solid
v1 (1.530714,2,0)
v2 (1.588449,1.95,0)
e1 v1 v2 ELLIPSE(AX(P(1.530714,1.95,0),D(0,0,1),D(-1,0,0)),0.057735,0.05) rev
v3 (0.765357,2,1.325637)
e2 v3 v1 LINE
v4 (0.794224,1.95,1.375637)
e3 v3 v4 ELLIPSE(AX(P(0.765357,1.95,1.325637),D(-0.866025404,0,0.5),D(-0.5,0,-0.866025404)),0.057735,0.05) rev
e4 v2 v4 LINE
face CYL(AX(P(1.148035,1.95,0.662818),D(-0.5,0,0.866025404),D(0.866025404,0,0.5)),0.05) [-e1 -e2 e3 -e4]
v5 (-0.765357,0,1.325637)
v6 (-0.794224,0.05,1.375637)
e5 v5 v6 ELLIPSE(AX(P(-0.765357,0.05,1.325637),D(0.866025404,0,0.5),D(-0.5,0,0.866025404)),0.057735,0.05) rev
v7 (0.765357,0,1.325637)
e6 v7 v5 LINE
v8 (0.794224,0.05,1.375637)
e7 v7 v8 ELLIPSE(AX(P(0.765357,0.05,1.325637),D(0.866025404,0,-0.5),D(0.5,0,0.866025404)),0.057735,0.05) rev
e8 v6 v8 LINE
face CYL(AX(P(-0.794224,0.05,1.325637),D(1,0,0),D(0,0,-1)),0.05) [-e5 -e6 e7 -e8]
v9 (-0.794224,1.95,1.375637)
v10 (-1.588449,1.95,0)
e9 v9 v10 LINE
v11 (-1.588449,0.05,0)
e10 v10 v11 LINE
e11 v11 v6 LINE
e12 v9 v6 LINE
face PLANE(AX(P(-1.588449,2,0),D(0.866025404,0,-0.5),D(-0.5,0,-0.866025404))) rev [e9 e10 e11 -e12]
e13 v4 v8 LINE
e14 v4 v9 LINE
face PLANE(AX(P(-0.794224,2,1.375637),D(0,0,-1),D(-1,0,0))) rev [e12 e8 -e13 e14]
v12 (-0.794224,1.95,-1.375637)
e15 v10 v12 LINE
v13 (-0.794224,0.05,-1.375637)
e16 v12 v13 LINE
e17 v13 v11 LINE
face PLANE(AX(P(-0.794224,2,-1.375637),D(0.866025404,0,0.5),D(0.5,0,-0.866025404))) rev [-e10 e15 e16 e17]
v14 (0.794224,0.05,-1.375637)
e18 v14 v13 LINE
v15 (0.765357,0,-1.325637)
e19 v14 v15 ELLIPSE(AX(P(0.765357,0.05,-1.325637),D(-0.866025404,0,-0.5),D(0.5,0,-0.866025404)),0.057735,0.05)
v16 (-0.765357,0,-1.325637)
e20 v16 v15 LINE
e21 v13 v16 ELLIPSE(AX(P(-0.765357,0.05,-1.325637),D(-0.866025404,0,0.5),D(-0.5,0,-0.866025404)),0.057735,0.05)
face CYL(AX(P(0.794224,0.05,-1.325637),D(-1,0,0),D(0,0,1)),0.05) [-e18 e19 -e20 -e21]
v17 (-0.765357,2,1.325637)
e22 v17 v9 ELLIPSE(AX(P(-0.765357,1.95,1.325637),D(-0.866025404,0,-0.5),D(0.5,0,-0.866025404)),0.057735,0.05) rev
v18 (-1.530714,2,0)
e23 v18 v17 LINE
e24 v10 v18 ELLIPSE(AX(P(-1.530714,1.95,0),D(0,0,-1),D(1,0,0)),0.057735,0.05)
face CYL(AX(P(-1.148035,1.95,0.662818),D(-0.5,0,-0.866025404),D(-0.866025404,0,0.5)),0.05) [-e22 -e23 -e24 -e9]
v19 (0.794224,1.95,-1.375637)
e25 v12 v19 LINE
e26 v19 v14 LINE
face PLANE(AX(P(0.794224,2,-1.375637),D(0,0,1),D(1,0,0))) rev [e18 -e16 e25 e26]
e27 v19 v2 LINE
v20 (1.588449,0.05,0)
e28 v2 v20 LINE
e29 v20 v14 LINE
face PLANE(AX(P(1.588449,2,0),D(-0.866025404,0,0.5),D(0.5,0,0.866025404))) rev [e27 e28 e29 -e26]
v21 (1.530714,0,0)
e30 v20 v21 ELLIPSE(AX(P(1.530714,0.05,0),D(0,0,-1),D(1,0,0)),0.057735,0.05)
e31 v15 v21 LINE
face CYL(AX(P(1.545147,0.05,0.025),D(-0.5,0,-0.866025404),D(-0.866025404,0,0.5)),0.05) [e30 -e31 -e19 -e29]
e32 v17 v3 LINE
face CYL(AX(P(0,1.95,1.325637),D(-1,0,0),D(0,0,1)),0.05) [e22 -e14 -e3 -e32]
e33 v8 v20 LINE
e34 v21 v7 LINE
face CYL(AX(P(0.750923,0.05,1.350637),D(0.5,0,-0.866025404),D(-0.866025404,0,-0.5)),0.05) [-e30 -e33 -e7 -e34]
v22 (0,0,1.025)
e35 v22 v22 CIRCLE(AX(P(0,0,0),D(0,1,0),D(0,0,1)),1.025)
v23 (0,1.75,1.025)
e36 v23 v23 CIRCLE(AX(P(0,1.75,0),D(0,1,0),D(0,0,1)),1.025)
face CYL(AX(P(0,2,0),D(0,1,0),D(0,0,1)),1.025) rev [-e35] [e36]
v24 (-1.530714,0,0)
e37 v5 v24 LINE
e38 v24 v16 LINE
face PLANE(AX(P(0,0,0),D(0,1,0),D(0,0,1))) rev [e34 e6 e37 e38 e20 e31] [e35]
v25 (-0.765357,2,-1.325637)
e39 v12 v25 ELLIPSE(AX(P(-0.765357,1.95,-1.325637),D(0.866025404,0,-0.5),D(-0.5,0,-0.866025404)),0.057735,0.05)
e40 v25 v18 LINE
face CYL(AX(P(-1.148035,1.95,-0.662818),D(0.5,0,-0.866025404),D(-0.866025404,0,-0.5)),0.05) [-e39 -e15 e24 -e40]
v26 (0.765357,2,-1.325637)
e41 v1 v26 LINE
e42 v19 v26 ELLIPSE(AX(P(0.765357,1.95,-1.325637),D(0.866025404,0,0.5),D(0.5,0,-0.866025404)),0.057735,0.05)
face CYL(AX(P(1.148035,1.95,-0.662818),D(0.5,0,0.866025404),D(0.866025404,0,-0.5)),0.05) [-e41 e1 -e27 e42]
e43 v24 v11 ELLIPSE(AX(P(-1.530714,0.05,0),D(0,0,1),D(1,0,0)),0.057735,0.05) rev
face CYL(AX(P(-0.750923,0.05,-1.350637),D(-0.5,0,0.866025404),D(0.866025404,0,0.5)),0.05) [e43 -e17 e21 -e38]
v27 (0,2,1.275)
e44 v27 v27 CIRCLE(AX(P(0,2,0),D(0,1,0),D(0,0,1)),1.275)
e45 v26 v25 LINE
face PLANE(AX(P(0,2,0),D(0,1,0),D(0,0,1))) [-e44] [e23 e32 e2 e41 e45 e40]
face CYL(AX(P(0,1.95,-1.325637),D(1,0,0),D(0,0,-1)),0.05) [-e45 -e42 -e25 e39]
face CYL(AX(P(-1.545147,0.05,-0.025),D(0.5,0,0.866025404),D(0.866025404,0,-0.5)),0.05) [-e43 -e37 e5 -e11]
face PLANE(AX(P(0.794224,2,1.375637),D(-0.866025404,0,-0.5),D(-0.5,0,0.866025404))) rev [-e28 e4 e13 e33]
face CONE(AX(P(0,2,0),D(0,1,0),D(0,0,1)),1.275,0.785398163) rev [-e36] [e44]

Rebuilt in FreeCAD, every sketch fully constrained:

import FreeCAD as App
import Part
import Sketcher

V = App.Vector
Q = App.Units.Quantity


def edges_at(feature, points):
    """Names of the edges that pass closest to the given points."""
    edges = feature.Shape.Edges
    near = lambda p: min(range(len(edges)), key=lambda i: edges[i].distToShape(Part.Vertex(*p))[0])
    return sorted({f"Edge{near(p) + 1}" for p in points})

doc = App.newDocument("Part")
body = doc.addObject("PartDesign::Body", "Body")

# Sketch on XZ plane
sketch1 = body.newObject("Sketcher::SketchObject", "Sketch")
sketch1.AttachmentSupport = (doc.getObject("XZ_Plane"), [""])
sketch1.MapMode = "FlatFace"
sketch1.addGeometry([
    Part.LineSegment(V(1.588449, 0, 0), V(0.794224, -1.375637, 0)),  # 0
    Part.LineSegment(V(0.794224, -1.375637, 0), V(-0.794224, -1.375637, 0)),  # 1
    Part.LineSegment(V(-0.794224, -1.375637, 0), V(-1.588449, 0, 0)),  # 2
    Part.LineSegment(V(-1.588449, 0, 0), V(-0.794224, 1.375637, 0)),  # 3
    Part.LineSegment(V(-0.794224, 1.375637, 0), V(0.794224, 1.375637, 0)),  # 4
    Part.LineSegment(V(0.794224, 1.375637, 0), V(1.588449, 0, 0)),  # 5
], False)
sketch1.addConstraint([
    Sketcher.Constraint("Coincident", 0, 2, 1, 1),
    Sketcher.Constraint("Coincident", 1, 2, 2, 1),
    Sketcher.Constraint("Coincident", 2, 2, 3, 1),
    Sketcher.Constraint("Coincident", 3, 2, 4, 1),
    Sketcher.Constraint("Coincident", 4, 2, 5, 1),
    Sketcher.Constraint("Coincident", 5, 2, 0, 1),
    Sketcher.Constraint("Horizontal", 1),
    Sketcher.Constraint("Horizontal", 4),
    Sketcher.Constraint("Symmetric", 0, 2, 3, 2, -1, 1),
    Sketcher.Constraint("Symmetric", 2, 2, 5, 2, -1, 1),
    Sketcher.Constraint("PointOnObject", 2, 2, -1),
    Sketcher.Constraint("Parallel", 2, 5),
    Sketcher.Constraint("Vertical", 1, 2, 3, 2),
    Sketcher.Constraint("Angle", 0, Q("-120 deg")),
    Sketcher.Constraint("DistanceX", 1, 2, 1, 1, Q("1.588449 mm")),
    Sketcher.Constraint("Distance", 0, Q("1.588449 mm")),
])
pad1 = body.newObject("PartDesign::Pad", "Pad")
pad1.Profile = sketch1
pad1.Length = 2
pad1.Reversed = True

# Sketch on XZ plane
sketch2 = body.newObject("Sketcher::SketchObject", "Sketch001")
sketch2.AttachmentSupport = (doc.getObject("XZ_Plane"), [""])
sketch2.MapMode = "FlatFace"
sketch2.AttachmentOffset = App.Placement(V(0, 0, -2), App.Rotation())
sketch2.addGeometry(Part.Circle(V(0, 0, 0), V(0, 0, 1), 1.025), False)
sketch2.addConstraint([
    Sketcher.Constraint("Coincident", 0, 3, -1, 1),
    Sketcher.Constraint("Diameter", 0, Q("2.05 mm")),
])
doc.recompute()
hole = body.newObject("PartDesign::Hole", "Hole")
hole.Profile = sketch2
hole.ThreadType = "None"
hole.Diameter = 2.05
hole.DepthType = "ThroughAll"
hole.HoleCutType = "Countersink"
hole.HoleCutDiameter = 2.55
hole.HoleCutCountersinkAngle = 90
hole.Reversed = True
doc.recompute()

fillet = body.newObject("PartDesign::Fillet", "Fillet")
fillet.Base = (hole, edges_at(hole, [
    (0, 2, -1.376),
    (-1.191, 2, -0.688),
    (-1.191, 2, 0.688),
    (0, 2, 1.376),
    (1.191, 2, 0.688),
    (1.191, 2, -0.688),
]))
fillet.Radius = 0.05
doc.recompute()

fillet2 = body.newObject("PartDesign::Fillet", "Fillet001")
fillet2.Base = (fillet, edges_at(fillet, [
    (0, 0, 1.376),
    (-1.191, 0, 0.688),
    (-1.191, 0, -0.688),
    (0, 0, -1.376),
    (1.191, 0, -0.688),
    (1.191, 0, 0.688),
]))
fillet2.Radius = 0.05

doc.recompute()
